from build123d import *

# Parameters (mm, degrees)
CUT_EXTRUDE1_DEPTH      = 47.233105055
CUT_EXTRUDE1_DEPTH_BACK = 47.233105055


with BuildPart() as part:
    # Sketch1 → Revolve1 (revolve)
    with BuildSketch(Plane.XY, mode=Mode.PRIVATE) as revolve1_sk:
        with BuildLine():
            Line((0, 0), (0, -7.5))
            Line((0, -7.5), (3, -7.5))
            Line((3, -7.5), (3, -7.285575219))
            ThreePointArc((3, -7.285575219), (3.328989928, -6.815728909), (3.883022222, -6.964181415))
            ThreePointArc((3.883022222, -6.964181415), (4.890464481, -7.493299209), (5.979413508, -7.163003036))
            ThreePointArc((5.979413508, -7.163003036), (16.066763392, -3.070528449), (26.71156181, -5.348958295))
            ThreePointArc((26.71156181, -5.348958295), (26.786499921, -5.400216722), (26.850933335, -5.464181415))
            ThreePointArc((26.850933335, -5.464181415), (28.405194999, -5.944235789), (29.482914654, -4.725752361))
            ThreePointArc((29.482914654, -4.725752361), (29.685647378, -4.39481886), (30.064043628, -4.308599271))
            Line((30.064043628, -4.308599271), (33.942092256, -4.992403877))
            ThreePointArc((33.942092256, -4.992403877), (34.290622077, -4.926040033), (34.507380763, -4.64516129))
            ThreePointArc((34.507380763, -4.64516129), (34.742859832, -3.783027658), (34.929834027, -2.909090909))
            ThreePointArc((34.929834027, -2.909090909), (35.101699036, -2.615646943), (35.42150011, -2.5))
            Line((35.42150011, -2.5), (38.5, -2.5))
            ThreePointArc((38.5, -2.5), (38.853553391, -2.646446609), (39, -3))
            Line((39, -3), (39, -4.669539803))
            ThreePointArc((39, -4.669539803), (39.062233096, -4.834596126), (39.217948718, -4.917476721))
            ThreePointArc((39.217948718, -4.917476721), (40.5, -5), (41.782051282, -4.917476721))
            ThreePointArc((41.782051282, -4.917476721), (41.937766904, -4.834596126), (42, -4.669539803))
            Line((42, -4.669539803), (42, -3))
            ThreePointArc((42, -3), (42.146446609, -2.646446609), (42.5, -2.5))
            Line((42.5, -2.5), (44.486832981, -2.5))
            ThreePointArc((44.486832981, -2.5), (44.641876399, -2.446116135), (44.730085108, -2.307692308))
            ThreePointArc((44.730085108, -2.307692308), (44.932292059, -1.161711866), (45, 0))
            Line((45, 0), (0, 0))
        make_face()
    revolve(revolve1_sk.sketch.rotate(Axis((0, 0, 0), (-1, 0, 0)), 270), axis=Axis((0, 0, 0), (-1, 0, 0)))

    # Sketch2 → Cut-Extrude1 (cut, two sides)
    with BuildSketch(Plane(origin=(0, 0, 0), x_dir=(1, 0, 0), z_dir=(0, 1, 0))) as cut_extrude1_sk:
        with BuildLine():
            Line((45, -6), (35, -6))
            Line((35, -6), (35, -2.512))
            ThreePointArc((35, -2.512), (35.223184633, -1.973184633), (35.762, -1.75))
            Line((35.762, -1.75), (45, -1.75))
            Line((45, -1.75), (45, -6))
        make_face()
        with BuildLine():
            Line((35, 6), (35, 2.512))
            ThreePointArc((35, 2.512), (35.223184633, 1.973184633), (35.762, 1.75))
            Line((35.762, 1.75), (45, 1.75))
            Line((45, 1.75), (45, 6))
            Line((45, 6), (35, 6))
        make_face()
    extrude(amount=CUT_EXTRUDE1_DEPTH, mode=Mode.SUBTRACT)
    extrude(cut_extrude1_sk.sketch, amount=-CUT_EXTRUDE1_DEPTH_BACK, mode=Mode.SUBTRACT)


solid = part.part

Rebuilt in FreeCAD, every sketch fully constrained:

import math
import FreeCAD as App
import Part
import Sketcher
Q = App.Units.Quantity

doc = App.newDocument("Part")
params = doc.addObject("Spreadsheet::Sheet", "Params")
for row, (alias, value) in enumerate([
    ("sketch1_radius", "16 mm"),
    ("sketch1_radius2", "10 mm"),
    ("sketch1_radius3", "0.5 mm"),
    ("sketch1_radius4", "1.5 mm"),
    ("sketch1_width", "3 mm"),
    ("revolution_angle", "360 deg"),
    ("sketch2_width", "10 mm"),
    ("sketch2_height", "4.25 mm"),
], start=1):
    params.set(f"A{row}", alias)
    params.set(f"B{row}", "=" + value)
    params.setAlias(f"B{row}", alias)

body = doc.addObject("PartDesign::Body", "Body")

# Sketch on XY plane
sketch1 = body.newObject("Sketcher::SketchObject", "Sketch")
sketch1.AttachmentSupport = (doc.getObject("XY_Plane"), [""])
sketch1.MapMode = "FlatFace"
sketch1.addGeometry([
    Part.LineSegment(App.Vector(0, 0, 0), App.Vector(0, -7.5, 0)),  # 0
    Part.LineSegment(App.Vector(0, -7.5, 0), App.Vector(3, -7.5, 0)),  # 1
    Part.LineSegment(App.Vector(3, -7.5, 0), App.Vector(3, -7.29, 0)),  # 2
    Part.ArcOfCircle(Part.Circle(App.Vector(3.5, -7.29, 0), App.Vector(0, 0, 1), 0.5), math.radians(40), math.radians(180)),  # 3
    Part.ArcOfCircle(Part.Circle(App.Vector(5.03, -6, 0), App.Vector(0, 0, 1), 1.5), math.radians(-140), math.radians(-51)),  # 4
    Part.ArcOfCircle(Part.Circle(App.Vector(17.68, -21.53, 0), App.Vector(0, 0, 1), 18.53), math.radians(61), math.radians(129)),  # 5
    Part.ArcOfCircle(Part.Circle(App.Vector(26.47, -5.79, 0), App.Vector(0, 0, 1), 0.5), math.radians(40), math.radians(61)),  # 6
    Part.ArcOfCircle(Part.Circle(App.Vector(28, -4.5, 0), App.Vector(0, 0, 1), 1.5), math.radians(-140), math.radians(-9)),  # 7
    Part.ArcOfCircle(Part.Circle(App.Vector(29.98, -4.8, 0), App.Vector(0, 0, 1), 0.5), math.radians(80), math.radians(171)),  # 8
    Part.LineSegment(App.Vector(30.06, -4.31, 0), App.Vector(33.94, -4.99, 0)),  # 9
    Part.ArcOfCircle(Part.Circle(App.Vector(34.03, -4.5, 0), App.Vector(0, 0, 1), 0.5), math.radians(-100), math.radians(-17)),  # 10
    Part.ArcOfCircle(Part.Circle(App.Vector(19.2, 0, 0), App.Vector(0, 0, 1), 16), math.radians(-16.88), math.radians(-10.48)),  # 11
    Part.ArcOfCircle(Part.Circle(App.Vector(35.42, -3, 0), App.Vector(0, 0, 1), 0.5), math.radians(90), math.radians(170)),  # 12
    Part.LineSegment(App.Vector(35.42, -2.5, 0), App.Vector(38.5, -2.5, 0)),  # 13
    Part.ArcOfCircle(Part.Circle(App.Vector(38.5, -3, 0), App.Vector(0, 0, 1), 0.5), math.radians(0), math.radians(90)),  # 14
    Part.LineSegment(App.Vector(39, -3, 0), App.Vector(39, -4.67, 0)),  # 15
    Part.ArcOfCircle(Part.Circle(App.Vector(39.25, -4.67, 0), App.Vector(0, 0, 1), 0.25), math.radians(180), math.radians(263)),  # 16
    Part.ArcOfCircle(Part.Circle(App.Vector(40.5, 5, 0), App.Vector(0, 0, 1), 10), math.radians(-97.37), math.radians(-82.63)),  # 17
    Part.ArcOfCircle(Part.Circle(App.Vector(41.75, -4.67, 0), App.Vector(0, 0, 1), 0.25), math.radians(-83), math.radians(0)),  # 18
    Part.LineSegment(App.Vector(42, -4.67, 0), App.Vector(42, -3, 0)),  # 19
    Part.ArcOfCircle(Part.Circle(App.Vector(42.5, -3, 0), App.Vector(0, 0, 1), 0.5), math.radians(90), math.radians(180)),  # 20
    Part.LineSegment(App.Vector(42.5, -2.5, 0), App.Vector(44.49, -2.5, 0)),  # 21
    Part.ArcOfCircle(Part.Circle(App.Vector(44.49, -2.25, 0), App.Vector(0, 0, 1), 0.25), math.radians(-90), math.radians(-13)),  # 22
    Part.ArcOfCircle(Part.Circle(App.Vector(35, 0, 0), App.Vector(0, 0, 1), 10), math.radians(-13.34), math.radians(0)),  # 23
    Part.LineSegment(App.Vector(45, 0, 0), App.Vector(0, 0, 0)),  # 24
], False)
sketch1.addConstraint([
    Sketcher.Constraint("Coincident", 0, 2, 1, 1),
    Sketcher.Constraint("Coincident", 1, 2, 2, 1),
    Sketcher.Constraint("Tangent", 2, 2, 3, 2),
    Sketcher.Constraint("Tangent", 3, 1, 4, 1),
    Sketcher.Constraint("Tangent", 4, 2, 5, 2),
    Sketcher.Constraint("Tangent", 5, 1, 6, 2),
    Sketcher.Constraint("Tangent", 6, 1, 7, 1),
    Sketcher.Constraint("Tangent", 7, 2, 8, 2),
    Sketcher.Constraint("Tangent", 8, 1, 9, 1),
    Sketcher.Constraint("Tangent", 9, 2, 10, 1),
    Sketcher.Constraint("Tangent", 10, 2, 11, 1),
    Sketcher.Constraint("Tangent", 11, 2, 12, 2),
    Sketcher.Constraint("Tangent", 12, 1, 13, 1),
    Sketcher.Constraint("Tangent", 13, 2, 14, 2),
    Sketcher.Constraint("Tangent", 14, 1, 15, 1),
    Sketcher.Constraint("Tangent", 15, 2, 16, 1),
    Sketcher.Constraint("Tangent", 16, 2, 17, 1),
    Sketcher.Constraint("Tangent", 17, 2, 18, 1),
    Sketcher.Constraint("Tangent", 18, 2, 19, 1),
    Sketcher.Constraint("Tangent", 19, 2, 20, 2),
    Sketcher.Constraint("Tangent", 20, 1, 21, 1),
    Sketcher.Constraint("Tangent", 21, 2, 22, 1),
    Sketcher.Constraint("Tangent", 22, 2, 23, 1),
    Sketcher.Constraint("Coincident", 23, 2, 24, 1),
    Sketcher.Constraint("Coincident", 24, 2, 0, 1),
    Sketcher.Constraint("Vertical", 0),
    Sketcher.Constraint("Horizontal", 1),
    Sketcher.Constraint("Vertical", 2),
    Sketcher.Constraint("Horizontal", 13),
    Sketcher.Constraint("Vertical", 15),
    Sketcher.Constraint("Vertical", 19),
    Sketcher.Constraint("Horizontal", 21),
    Sketcher.Constraint("Horizontal", 24),
    Sketcher.Constraint("Coincident", 24, 2, -1, 1),
    Sketcher.Constraint("Equal", 3, 6),
    Sketcher.Constraint("Equal", 4, 7),
    Sketcher.Constraint("Equal", 6, 8),
    Sketcher.Constraint("Equal", 8, 10),
    Sketcher.Constraint("Equal", 10, 12),
    Sketcher.Constraint("Equal", 12, 14),
    Sketcher.Constraint("Equal", 16, 18),
    Sketcher.Constraint("Equal", 14, 20),
    Sketcher.Constraint("Equal", 18, 22),
    Sketcher.Constraint("Equal", 17, 23),
    Sketcher.Constraint("PointOnObject", 11, 3, -1),
    Sketcher.Constraint("PointOnObject", 23, 3, -1),
    Sketcher.Constraint("Horizontal", 7, 3, 10, 3),
    Sketcher.Constraint("Horizontal", 16, 3, 18, 3),
    Sketcher.Constraint("Horizontal", 14, 3, 20, 3),
    Sketcher.Constraint("Radius", 11, Q("16 mm")),
    Sketcher.Constraint("Radius", 17, Q("10 mm")),
    Sketcher.Constraint("Radius", 3, Q("0.5 mm")),
    Sketcher.Constraint("Radius", 4, Q("1.5 mm")),
    Sketcher.Constraint("DistanceX", 1, 1, 1, 2, Q("3 mm")),
    Sketcher.Constraint("DistanceX", 24, 2, 24, 1, Q("45 mm")),
    Sketcher.Constraint("Angle", 9, Q("-10 deg")),
    Sketcher.Constraint("Radius", 16, Q("0.25 mm")),
    Sketcher.Constraint("DistanceY", 0, 2, 0, 1, Q("7.5 mm")),
    Sketcher.Constraint("DistanceY", 4, 3, -1, 1, Q("6 mm")),
    Sketcher.Constraint("DistanceX", -1, 1, 7, 3, Q("28 mm")),
    Sketcher.Constraint("DistanceY", 12, 3, -1, 1, Q("3 mm")),
    Sketcher.Constraint("DistanceY", -1, 1, 17, 3, Q("5 mm")),
    Sketcher.Constraint("DistanceX", -1, 1, 14, 1, Q("39 mm")),
    Sketcher.Constraint("DistanceX", -1, 1, 18, 2, Q("42 mm")),
    Sketcher.Constraint("DistanceY", 10, 3, 12, 1, Q("2 mm")),
    Sketcher.Constraint("DistanceY", 3, 3, 6, 3, Q("1.5 mm")),
    Sketcher.Constraint("DistanceX", 13, 1, 13, 2, Q("3.0785 mm")),
    Sketcher.Constraint("Radius", 5, Q("18.529854 mm")),
    Sketcher.Constraint("DistanceY", 2, 1, 2, 2, Q("0.214425 mm")),
])
sketch1.setExpression("Constraints[49]", "Params.sketch1_radius")
sketch1.setExpression("Constraints[50]", "Params.sketch1_radius2")
sketch1.setExpression("Constraints[51]", "Params.sketch1_radius3")
sketch1.setExpression("Constraints[52]", "Params.sketch1_radius4")
sketch1.setExpression("Constraints[53]", "Params.sketch1_width")
revolution = body.newObject("PartDesign::Revolution", "Revolution")
revolution.Profile = sketch1
revolution.ReferenceAxis = (sketch1, ["H_Axis"])
revolution.setExpression("Angle", "Params.revolution_angle")

# Sketch on XZ plane
sketch2 = body.newObject("Sketcher::SketchObject", "Sketch001")
sketch2.AttachmentSupport = (doc.getObject("XZ_Plane"), [""])
sketch2.MapMode = "FlatFace"
sketch2.addGeometry([
    Part.LineSegment(App.Vector(35, 6, 0), App.Vector(45, 6, 0)),  # 0
    Part.LineSegment(App.Vector(45, 6, 0), App.Vector(45, 1.8, 0)),  # 1
    Part.LineSegment(App.Vector(45, 1.8, 0), App.Vector(35.8, 1.8, 0)),  # 2
    Part.ArcOfCircle(Part.Circle(App.Vector(35.8, 2.5, 0), App.Vector(0, 0, 1), 0.8), math.radians(-180), math.radians(-90)),  # 3
    Part.LineSegment(App.Vector(35, 2.5, 0), App.Vector(35, 6, 0)),  # 4
    Part.LineSegment(App.Vector(35, -6, 0), App.Vector(35, -2.5, 0)),  # 5
    Part.ArcOfCircle(Part.Circle(App.Vector(35.8, -2.5, 0), App.Vector(0, 0, 1), 0.8), math.radians(90), math.radians(180)),  # 6
    Part.LineSegment(App.Vector(35.8, -1.8, 0), App.Vector(45, -1.8, 0)),  # 7
    Part.LineSegment(App.Vector(45, -1.8, 0), App.Vector(45, -6, 0)),  # 8
    Part.LineSegment(App.Vector(45, -6, 0), App.Vector(35, -6, 0)),  # 9
], False)
sketch2.addConstraint([
    Sketcher.Constraint("Coincident", 0, 2, 1, 1),
    Sketcher.Constraint("Coincident", 1, 2, 2, 1),
    Sketcher.Constraint("Tangent", 2, 2, 3, 2),
    Sketcher.Constraint("Tangent", 3, 1, 4, 1),
    Sketcher.Constraint("Coincident", 4, 2, 0, 1),
    Sketcher.Constraint("Tangent", 5, 2, 6, 2),
    Sketcher.Constraint("Tangent", 6, 1, 7, 1),
    Sketcher.Constraint("Coincident", 7, 2, 8, 1),
    Sketcher.Constraint("Coincident", 8, 2, 9, 1),
    Sketcher.Constraint("Coincident", 9, 2, 5, 1),
    Sketcher.Constraint("Horizontal", 0),
    Sketcher.Constraint("Vertical", 1),
    Sketcher.Constraint("Horizontal", 2),
    Sketcher.Constraint("Vertical", 4),
    Sketcher.Constraint("Vertical", 5),
    Sketcher.Constraint("Horizontal", 7),
    Sketcher.Constraint("Vertical", 8),
    Sketcher.Constraint("Horizontal", 9),
    Sketcher.Constraint("Equal", 3, 6),
    Sketcher.Constraint("Symmetric", 3, 3, 6, 3, -1),
    Sketcher.Constraint("Symmetric", 0, 2, 8, 2, -1),
    Sketcher.Constraint("DistanceX", 0, 1, 0, 2, Q("10 mm")),
    Sketcher.Constraint("DistanceX", -1, 1, 0, 2, Q("45 mm")),
    Sketcher.Constraint("DistanceY", -1, 1, 0, 2, Q("6 mm")),
    Sketcher.Constraint("Radius", 3, Q("0.762 mm")),
    Sketcher.Constraint("DistanceY", 1, 2, 1, 1, Q("4.25 mm")),
])
sketch2.setExpression("Constraints[21]", "Params.sketch2_width")
sketch2.setExpression("Constraints[25]", "Params.sketch2_height")
pocket1 = body.newObject("PartDesign::Pocket", "Pocket")
pocket1.Profile = sketch2
pocket1.Type = "ThroughAll"
pocket1.Midplane = True

doc.recompute()
